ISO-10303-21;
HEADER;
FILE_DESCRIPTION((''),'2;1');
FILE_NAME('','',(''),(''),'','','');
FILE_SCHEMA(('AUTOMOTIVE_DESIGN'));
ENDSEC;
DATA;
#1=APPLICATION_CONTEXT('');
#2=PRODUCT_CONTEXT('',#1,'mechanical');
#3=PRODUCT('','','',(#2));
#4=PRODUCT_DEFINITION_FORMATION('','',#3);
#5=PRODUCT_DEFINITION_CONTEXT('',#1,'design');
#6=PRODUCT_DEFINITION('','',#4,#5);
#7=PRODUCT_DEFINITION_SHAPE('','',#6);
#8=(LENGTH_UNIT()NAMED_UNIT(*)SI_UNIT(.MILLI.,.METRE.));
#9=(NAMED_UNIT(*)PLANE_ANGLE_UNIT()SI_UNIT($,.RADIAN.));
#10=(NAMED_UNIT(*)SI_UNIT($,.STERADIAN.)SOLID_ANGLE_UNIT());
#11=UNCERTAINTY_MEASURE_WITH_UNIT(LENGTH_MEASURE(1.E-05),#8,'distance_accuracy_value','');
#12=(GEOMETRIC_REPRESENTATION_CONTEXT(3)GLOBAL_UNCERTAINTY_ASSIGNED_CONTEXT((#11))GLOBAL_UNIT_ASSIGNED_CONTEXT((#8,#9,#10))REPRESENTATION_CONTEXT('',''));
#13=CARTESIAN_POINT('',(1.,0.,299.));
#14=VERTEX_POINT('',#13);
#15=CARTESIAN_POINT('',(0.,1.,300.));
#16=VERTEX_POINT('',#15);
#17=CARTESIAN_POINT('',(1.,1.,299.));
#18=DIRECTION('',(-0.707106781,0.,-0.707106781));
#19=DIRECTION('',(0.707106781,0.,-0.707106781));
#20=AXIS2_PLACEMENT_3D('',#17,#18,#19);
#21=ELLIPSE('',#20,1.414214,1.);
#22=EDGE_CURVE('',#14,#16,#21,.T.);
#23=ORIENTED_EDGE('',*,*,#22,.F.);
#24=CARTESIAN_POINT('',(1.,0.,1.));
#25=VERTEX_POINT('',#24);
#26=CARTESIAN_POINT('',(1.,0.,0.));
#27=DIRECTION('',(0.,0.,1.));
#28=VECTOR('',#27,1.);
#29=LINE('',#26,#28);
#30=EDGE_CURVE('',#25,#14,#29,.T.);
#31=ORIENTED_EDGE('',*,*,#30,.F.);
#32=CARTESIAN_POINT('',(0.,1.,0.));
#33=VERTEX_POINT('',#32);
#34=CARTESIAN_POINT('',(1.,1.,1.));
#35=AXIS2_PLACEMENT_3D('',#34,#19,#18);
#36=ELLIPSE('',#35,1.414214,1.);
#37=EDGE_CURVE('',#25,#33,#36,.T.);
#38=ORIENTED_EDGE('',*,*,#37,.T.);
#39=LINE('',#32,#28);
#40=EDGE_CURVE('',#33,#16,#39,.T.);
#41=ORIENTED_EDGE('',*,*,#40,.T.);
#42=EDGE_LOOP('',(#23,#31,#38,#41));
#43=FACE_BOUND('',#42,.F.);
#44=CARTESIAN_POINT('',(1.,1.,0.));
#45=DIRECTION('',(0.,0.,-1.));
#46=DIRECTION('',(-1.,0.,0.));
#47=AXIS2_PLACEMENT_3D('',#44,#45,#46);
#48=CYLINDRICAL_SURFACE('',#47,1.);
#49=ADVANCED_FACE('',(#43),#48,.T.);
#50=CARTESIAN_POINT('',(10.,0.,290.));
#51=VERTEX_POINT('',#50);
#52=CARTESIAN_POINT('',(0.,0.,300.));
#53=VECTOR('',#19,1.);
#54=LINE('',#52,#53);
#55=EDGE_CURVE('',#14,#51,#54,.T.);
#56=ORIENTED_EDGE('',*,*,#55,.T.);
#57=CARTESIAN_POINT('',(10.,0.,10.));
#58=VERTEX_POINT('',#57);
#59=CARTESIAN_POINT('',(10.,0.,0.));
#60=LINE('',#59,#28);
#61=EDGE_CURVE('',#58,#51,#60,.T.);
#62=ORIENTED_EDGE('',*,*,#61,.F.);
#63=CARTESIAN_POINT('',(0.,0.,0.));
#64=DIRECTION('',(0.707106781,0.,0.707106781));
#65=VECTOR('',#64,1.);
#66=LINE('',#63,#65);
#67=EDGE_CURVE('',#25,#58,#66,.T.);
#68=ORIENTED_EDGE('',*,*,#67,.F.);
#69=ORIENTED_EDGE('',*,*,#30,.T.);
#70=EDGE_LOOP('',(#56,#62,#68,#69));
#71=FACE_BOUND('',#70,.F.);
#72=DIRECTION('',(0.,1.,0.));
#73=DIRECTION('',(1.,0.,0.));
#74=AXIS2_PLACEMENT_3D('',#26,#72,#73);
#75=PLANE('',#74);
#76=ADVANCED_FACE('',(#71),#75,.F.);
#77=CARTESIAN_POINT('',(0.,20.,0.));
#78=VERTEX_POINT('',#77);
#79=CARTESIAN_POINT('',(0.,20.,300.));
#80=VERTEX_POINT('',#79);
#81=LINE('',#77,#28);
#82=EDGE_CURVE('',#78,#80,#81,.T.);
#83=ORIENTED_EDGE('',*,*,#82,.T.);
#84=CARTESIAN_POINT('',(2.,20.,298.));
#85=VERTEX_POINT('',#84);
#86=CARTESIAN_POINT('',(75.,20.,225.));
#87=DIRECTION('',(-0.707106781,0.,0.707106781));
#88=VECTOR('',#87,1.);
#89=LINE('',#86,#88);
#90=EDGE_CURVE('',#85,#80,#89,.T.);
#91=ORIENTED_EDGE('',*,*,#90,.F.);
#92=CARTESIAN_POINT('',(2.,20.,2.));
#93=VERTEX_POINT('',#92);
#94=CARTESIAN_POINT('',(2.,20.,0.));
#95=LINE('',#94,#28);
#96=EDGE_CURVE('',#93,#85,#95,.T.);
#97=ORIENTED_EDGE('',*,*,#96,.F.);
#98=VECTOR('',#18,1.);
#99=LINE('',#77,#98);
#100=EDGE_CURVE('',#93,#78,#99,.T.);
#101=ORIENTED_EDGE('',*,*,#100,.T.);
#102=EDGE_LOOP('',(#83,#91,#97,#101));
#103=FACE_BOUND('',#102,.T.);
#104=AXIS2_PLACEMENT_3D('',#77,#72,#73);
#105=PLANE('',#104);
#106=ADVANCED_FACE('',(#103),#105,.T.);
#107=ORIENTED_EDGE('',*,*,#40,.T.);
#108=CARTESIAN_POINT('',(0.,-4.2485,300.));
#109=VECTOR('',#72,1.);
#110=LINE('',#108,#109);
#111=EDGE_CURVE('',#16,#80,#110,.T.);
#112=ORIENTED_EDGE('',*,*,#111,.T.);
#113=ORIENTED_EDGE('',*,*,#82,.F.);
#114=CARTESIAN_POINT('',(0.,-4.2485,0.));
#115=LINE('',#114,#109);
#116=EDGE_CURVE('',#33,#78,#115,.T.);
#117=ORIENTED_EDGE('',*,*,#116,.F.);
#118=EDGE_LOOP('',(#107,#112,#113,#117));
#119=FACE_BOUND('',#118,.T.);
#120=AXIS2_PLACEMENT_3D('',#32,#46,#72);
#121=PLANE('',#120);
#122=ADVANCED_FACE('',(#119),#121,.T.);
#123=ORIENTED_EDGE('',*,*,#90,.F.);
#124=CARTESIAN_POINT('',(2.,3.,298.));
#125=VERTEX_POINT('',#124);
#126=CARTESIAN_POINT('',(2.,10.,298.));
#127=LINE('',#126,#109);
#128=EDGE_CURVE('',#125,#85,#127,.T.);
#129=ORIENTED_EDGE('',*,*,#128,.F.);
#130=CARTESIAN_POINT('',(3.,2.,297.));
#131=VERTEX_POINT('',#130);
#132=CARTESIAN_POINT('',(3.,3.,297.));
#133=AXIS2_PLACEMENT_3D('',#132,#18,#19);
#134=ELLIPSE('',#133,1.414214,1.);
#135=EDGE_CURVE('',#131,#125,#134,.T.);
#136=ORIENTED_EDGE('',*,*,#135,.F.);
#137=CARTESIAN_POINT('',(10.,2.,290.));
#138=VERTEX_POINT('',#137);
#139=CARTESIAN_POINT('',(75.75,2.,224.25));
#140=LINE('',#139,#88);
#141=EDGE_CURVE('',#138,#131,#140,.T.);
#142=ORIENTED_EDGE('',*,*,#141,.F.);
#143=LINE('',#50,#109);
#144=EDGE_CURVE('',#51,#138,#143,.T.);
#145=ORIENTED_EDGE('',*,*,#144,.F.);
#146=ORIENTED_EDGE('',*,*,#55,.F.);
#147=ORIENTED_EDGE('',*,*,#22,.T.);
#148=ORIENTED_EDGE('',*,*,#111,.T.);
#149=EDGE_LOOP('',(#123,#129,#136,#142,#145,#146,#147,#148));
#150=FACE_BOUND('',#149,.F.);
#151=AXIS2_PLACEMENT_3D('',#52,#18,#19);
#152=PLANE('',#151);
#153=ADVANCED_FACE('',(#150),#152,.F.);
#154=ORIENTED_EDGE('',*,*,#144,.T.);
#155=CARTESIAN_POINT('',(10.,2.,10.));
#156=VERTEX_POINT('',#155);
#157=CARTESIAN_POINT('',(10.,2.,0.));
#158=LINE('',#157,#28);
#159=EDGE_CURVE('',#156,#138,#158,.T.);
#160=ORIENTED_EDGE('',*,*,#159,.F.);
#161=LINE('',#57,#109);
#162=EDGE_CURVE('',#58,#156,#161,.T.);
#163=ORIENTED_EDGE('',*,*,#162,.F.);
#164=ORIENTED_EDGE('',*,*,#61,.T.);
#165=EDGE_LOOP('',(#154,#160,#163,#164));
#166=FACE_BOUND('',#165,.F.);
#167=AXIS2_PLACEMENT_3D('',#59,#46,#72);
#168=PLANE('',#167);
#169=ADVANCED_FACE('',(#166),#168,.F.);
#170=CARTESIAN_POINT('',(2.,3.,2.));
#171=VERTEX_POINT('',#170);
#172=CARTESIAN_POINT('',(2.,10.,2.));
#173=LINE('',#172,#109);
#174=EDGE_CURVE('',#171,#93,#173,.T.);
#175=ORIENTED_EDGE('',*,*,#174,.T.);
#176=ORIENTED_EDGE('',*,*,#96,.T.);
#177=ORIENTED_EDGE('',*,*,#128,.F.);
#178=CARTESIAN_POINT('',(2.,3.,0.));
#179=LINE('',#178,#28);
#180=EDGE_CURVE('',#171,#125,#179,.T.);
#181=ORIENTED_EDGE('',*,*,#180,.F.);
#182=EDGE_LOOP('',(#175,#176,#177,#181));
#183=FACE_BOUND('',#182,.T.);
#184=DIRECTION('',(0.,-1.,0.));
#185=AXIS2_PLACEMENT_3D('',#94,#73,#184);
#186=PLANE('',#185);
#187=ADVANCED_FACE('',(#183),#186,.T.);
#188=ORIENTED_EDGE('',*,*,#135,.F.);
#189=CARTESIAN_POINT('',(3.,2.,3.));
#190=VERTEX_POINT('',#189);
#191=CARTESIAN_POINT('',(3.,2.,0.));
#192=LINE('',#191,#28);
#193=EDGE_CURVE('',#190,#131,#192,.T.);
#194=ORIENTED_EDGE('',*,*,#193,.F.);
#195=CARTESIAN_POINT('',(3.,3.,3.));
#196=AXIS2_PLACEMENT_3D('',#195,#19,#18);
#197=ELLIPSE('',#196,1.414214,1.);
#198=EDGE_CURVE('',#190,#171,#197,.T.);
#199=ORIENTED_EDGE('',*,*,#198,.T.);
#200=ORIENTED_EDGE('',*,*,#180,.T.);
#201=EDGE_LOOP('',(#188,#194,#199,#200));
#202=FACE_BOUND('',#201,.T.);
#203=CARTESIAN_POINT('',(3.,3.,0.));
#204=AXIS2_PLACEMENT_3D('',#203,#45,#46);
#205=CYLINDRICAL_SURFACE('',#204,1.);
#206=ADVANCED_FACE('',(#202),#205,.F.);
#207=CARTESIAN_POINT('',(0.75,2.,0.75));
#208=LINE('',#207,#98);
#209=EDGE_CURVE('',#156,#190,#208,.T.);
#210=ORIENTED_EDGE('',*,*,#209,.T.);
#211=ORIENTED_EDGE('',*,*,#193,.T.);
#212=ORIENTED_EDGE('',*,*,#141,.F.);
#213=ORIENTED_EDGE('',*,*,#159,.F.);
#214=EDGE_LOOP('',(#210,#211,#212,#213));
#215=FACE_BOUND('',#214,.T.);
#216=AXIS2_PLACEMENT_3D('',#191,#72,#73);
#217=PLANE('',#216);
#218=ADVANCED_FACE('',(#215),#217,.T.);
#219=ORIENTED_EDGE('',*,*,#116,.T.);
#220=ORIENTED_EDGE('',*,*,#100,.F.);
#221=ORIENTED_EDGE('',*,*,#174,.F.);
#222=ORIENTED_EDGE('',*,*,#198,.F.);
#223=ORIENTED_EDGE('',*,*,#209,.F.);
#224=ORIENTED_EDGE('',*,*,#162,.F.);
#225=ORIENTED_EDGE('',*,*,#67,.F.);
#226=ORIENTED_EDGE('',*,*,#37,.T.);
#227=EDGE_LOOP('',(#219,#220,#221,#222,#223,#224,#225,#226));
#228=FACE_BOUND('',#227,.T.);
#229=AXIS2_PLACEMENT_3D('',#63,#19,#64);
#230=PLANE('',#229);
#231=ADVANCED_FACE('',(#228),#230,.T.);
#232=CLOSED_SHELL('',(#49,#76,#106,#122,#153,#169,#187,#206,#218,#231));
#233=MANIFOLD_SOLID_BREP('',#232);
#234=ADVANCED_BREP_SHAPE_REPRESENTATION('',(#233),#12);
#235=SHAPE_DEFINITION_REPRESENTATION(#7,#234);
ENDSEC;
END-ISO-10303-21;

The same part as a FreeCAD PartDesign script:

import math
import FreeCAD as App
import Part
import Sketcher

doc = App.newDocument("Part")
body = doc.addObject("PartDesign::Body", "Body")

# Sketch on XY plane
sketch1 = doc.addObject("Sketcher::SketchObject", "Sketch")
body.addObject(sketch1)
sketch1.AttachmentSupport = (doc.XY_Plane, [""])
sketch1.MapMode = "FlatFace"
sketch1.addGeometry(Part.ArcOfCircle(Part.Circle(App.Vector(1, 1, 0), App.Vector(0, 0, 1), 1), math.radians(180), math.radians(270)), False)
sketch1.addGeometry(Part.LineSegment(App.Vector(1, 0, 0), App.Vector(10, 0, 0)), False)
sketch1.addGeometry(Part.LineSegment(App.Vector(10, 0, 0), App.Vector(10, 2, 0)), False)
sketch1.addGeometry(Part.LineSegment(App.Vector(10, 2, 0), App.Vector(3, 2, 0)), False)
sketch1.addGeometry(Part.ArcOfCircle(Part.Circle(App.Vector(3, 3, 0), App.Vector(0, 0, 1), 1), math.radians(180), math.radians(270)), False)
sketch1.addGeometry(Part.LineSegment(App.Vector(2, 3, 0), App.Vector(2, 20, 0)), False)
sketch1.addGeometry(Part.LineSegment(App.Vector(2, 20, 0), App.Vector(0, 20, 0)), False)
sketch1.addGeometry(Part.LineSegment(App.Vector(0, 20, 0), App.Vector(0, 1, 0)), False)
sketch1.addConstraint(Sketcher.Constraint("Tangent", 0, 2, 1, 1))
sketch1.addConstraint(Sketcher.Constraint("Coincident", 1, 2, 2, 1))
sketch1.addConstraint(Sketcher.Constraint("Coincident", 2, 2, 3, 1))
sketch1.addConstraint(Sketcher.Constraint("Tangent", 3, 2, 4, 2))
sketch1.addConstraint(Sketcher.Constraint("Tangent", 4, 1, 5, 1))
sketch1.addConstraint(Sketcher.Constraint("Coincident", 5, 2, 6, 1))
sketch1.addConstraint(Sketcher.Constraint("Coincident", 6, 2, 7, 1))
sketch1.addConstraint(Sketcher.Constraint("Tangent", 7, 2, 0, 1))
sketch1.addConstraint(Sketcher.Constraint("Horizontal", 1))
sketch1.addConstraint(Sketcher.Constraint("Vertical", 2))
sketch1.addConstraint(Sketcher.Constraint("Horizontal", 3))
sketch1.addConstraint(Sketcher.Constraint("Vertical", 5))
sketch1.addConstraint(Sketcher.Constraint("Horizontal", 6))
sketch1.addConstraint(Sketcher.Constraint("Vertical", 7))
sketch1.addConstraint(Sketcher.Constraint("Equal", 0, 4))
sketch1.addConstraint(Sketcher.Constraint("PointOnObject", 0, 2, -1))
sketch1.addConstraint(Sketcher.Constraint("PointOnObject", 6, 2, -2))
sketch1.addConstraint(Sketcher.Constraint("Equal", 6, 2))
sketch1.addConstraint(Sketcher.Constraint("Radius", 0, 1.0))
sketch1.addConstraint(Sketcher.Constraint("DistanceX", 6, 2, 6, 1, 2.0))
sketch1.addConstraint(Sketcher.Constraint("DistanceX", -1, 1, 1, 2, 10.0))
sketch1.addConstraint(Sketcher.Constraint("DistanceY", -1, 1, 5, 2, 20.0))
pad1 = doc.addObject("PartDesign::Pad", "Pad")
body.addObject(pad1)
pad1.Profile = sketch1
pad1.Length = 300

# Sketch on XZ plane
sketch2 = doc.addObject("Sketcher::SketchObject", "Sketch001")
body.addObject(sketch2)
sketch2.AttachmentSupport = (doc.XZ_Plane, [""])
sketch2.MapMode = "FlatFace"
sketch2.addGeometry(Part.LineSegment(App.Vector(0, 0, 0), App.Vector(10, 0, 0)), False)
sketch2.addGeometry(Part.LineSegment(App.Vector(10, 0, 0), App.Vector(10, 10, 0)), False)
sketch2.addGeometry(Part.LineSegment(App.Vector(10, 10, 0), App.Vector(0, 0, 0)), False)
sketch2.addGeometry(Part.LineSegment(App.Vector(10, 300, 0), App.Vector(0, 300, 0)), False)
sketch2.addGeometry(Part.LineSegment(App.Vector(0, 300, 0), App.Vector(10, 290, 0)), False)
sketch2.addGeometry(Part.LineSegment(App.Vector(10, 290, 0), App.Vector(10, 300, 0)), False)
sketch2.addConstraint(Sketcher.Constraint("Coincident", 0, 2, 1, 1))
sketch2.addConstraint(Sketcher.Constraint("Coincident", 1, 2, 2, 1))
sketch2.addConstraint(Sketcher.Constraint("Coincident", 2, 2, 0, 1))
sketch2.addConstraint(Sketcher.Constraint("Coincident", 3, 2, 4, 1))
sketch2.addConstraint(Sketcher.Constraint("Coincident", 4, 2, 5, 1))
sketch2.addConstraint(Sketcher.Constraint("Coincident", 5, 2, 3, 1))
sketch2.addConstraint(Sketcher.Constraint("Horizontal", 0))
sketch2.addConstraint(Sketcher.Constraint("Vertical", 1))
sketch2.addConstraint(Sketcher.Constraint("Horizontal", 3))
sketch2.addConstraint(Sketcher.Constraint("Vertical", 5))
sketch2.addConstraint(Sketcher.Constraint("Coincident", 2, 2, -1, 1))
sketch2.addConstraint(Sketcher.Constraint("PointOnObject", 3, 2, -2))
sketch2.addConstraint(Sketcher.Constraint("Perpendicular", 2, 4))
sketch2.addConstraint(Sketcher.Constraint("Vertical", 1, 2, 4, 2))
sketch2.addConstraint(Sketcher.Constraint("Equal", 3, 1))
sketch2.addConstraint(Sketcher.Constraint("DistanceX", 0, 1, 0, 2, 10.0))
sketch2.addConstraint(Sketcher.Constraint("DistanceY", -1, 1, 3, 2, 300.0))
pocket1 = doc.addObject("PartDesign::Pocket", "Pocket")
body.addObject(pocket1)
pocket1.Profile = sketch2
pocket1.Type = "ThroughAll"

doc.recompute()
